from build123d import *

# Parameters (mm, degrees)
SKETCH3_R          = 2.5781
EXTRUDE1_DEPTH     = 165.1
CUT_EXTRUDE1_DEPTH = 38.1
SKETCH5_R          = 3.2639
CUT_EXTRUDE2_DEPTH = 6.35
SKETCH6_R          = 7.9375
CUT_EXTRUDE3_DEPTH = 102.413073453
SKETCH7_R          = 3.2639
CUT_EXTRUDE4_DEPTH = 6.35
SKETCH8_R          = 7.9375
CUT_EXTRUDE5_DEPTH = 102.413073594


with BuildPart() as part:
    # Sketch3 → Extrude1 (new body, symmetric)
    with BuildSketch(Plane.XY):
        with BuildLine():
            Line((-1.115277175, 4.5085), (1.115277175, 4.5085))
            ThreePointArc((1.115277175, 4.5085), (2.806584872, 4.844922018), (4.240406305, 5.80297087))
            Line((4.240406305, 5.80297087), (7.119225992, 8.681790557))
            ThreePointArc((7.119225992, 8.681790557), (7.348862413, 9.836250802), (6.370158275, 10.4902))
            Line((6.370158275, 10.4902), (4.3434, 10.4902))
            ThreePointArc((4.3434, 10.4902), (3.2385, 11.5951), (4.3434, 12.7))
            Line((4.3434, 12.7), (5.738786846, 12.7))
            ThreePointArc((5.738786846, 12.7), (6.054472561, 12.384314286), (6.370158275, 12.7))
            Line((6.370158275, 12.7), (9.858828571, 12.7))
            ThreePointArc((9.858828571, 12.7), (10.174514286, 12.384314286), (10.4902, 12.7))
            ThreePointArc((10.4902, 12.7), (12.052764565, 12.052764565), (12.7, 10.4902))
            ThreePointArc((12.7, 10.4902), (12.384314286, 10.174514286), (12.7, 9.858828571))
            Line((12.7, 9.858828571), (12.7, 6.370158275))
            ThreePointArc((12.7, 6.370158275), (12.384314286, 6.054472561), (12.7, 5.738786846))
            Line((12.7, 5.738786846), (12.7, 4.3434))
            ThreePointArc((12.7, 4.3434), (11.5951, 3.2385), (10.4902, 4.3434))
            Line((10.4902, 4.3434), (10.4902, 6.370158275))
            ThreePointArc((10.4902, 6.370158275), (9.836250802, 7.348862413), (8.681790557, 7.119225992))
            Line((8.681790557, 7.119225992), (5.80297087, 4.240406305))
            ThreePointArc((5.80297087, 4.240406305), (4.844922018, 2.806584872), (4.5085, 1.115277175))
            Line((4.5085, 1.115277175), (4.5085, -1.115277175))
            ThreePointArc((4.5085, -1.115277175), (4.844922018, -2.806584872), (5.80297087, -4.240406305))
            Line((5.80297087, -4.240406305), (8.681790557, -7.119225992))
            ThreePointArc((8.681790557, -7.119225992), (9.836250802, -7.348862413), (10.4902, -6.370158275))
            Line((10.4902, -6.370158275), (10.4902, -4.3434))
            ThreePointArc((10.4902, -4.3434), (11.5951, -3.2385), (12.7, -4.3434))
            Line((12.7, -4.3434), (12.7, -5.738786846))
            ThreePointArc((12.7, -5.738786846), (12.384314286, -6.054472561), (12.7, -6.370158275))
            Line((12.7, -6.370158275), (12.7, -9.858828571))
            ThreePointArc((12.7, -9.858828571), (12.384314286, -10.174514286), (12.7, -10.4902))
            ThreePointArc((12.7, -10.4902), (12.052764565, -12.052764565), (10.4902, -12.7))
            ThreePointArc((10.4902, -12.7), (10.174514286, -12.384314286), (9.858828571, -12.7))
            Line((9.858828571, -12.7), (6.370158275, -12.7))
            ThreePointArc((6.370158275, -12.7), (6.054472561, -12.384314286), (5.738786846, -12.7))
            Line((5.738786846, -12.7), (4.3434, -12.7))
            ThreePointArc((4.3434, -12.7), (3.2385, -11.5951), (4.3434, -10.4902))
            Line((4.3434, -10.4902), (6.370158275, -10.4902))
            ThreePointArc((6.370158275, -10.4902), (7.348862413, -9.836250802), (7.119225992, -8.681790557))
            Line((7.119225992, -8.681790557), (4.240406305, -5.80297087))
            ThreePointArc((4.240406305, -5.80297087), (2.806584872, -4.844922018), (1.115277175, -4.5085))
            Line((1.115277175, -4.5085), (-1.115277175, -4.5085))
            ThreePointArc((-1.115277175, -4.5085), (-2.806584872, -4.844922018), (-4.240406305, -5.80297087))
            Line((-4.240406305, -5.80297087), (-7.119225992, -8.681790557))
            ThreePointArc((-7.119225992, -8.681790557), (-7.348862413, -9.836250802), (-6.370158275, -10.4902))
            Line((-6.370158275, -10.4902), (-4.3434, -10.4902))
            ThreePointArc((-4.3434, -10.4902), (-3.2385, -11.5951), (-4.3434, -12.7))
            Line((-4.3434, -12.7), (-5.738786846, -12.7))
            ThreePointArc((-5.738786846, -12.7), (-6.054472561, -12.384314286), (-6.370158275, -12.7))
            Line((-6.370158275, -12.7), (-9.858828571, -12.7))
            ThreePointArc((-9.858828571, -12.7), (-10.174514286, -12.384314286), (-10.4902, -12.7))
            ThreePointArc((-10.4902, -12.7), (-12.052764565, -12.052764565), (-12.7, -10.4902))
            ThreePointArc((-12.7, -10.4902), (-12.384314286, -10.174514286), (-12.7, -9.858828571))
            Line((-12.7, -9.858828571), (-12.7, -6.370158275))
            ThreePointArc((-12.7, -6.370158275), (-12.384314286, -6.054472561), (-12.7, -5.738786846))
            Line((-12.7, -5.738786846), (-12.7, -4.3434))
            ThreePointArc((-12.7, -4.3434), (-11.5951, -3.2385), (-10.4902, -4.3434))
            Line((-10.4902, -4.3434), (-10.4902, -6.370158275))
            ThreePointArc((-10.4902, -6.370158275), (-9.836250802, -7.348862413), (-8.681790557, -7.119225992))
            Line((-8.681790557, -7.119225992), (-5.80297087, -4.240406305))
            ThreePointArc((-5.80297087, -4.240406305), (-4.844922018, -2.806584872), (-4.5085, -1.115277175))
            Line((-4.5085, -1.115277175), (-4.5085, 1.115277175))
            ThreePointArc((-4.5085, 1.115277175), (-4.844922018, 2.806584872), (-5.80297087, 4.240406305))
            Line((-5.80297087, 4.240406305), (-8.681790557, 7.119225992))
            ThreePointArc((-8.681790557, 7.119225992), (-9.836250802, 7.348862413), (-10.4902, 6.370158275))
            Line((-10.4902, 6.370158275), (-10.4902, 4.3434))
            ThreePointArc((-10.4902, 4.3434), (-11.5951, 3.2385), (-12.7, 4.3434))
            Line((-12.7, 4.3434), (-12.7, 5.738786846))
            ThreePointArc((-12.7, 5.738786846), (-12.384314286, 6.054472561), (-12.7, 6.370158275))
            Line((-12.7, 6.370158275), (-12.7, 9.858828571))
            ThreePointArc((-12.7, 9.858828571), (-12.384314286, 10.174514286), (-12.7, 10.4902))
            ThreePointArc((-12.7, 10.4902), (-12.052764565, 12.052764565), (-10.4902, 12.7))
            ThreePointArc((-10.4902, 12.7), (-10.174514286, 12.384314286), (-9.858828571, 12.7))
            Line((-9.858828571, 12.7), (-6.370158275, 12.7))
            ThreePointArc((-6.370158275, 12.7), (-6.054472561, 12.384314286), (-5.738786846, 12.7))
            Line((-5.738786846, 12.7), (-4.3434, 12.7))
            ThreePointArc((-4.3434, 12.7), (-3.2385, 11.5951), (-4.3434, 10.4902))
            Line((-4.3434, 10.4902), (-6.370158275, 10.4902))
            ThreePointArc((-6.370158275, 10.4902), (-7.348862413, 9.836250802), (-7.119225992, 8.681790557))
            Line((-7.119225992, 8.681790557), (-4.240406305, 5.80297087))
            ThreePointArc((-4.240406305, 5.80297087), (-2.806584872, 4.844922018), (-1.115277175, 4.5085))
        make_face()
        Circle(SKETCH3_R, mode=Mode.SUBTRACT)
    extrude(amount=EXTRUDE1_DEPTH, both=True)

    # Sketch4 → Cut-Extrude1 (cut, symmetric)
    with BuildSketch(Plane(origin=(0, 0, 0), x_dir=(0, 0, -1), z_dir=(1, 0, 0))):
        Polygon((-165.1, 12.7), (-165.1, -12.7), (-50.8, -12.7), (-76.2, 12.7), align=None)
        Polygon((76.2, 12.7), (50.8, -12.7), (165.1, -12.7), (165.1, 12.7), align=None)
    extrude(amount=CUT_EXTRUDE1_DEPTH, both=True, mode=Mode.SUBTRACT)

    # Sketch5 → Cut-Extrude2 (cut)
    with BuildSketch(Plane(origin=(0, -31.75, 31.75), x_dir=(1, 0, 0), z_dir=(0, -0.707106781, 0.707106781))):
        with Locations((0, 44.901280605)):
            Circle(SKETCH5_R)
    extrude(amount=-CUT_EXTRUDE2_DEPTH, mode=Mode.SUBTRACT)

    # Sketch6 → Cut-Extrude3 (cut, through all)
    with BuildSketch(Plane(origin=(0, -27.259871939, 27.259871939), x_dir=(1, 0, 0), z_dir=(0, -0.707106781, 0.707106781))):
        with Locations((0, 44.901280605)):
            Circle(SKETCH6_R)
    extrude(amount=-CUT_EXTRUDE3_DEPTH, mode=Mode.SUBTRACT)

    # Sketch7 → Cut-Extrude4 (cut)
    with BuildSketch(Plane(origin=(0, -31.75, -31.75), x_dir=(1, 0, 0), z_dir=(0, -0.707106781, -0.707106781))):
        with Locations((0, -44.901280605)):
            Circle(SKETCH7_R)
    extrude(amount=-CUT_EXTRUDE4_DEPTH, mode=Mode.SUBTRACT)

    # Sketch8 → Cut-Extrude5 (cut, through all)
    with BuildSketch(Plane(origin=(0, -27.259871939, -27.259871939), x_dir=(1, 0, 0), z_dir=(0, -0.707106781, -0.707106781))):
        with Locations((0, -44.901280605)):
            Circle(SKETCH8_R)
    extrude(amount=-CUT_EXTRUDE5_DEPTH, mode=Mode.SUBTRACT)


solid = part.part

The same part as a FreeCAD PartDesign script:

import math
import FreeCAD as App
import Part
import Sketcher
from FreeCAD import Vector
Q = App.Units.Quantity

doc = App.newDocument("Part")
body = doc.addObject("PartDesign::Body", "Body")

# Sketch on XY plane
sketch1 = body.newObject("Sketcher::SketchObject", "Sketch")
sketch1.AttachmentSupport = (doc.getObject("XY_Plane"), [""])
sketch1.MapMode = "FlatFace"
sketch1.addGeometry([
    Part.LineSegment(Vector(1.115277, 4.5085, 0), Vector(-1.115277, 4.5085, 0)),  # 0
    Part.ArcOfCircle(Part.Circle(Vector(-1.115277, 8.9281, 0), Vector(0, 0, 1), 4.4196), math.radians(-135), math.radians(-90)),  # 1
    Part.LineSegment(Vector(-4.240406, 5.802971, 0), Vector(-7.119226, 8.681791, 0)),  # 2
    Part.ArcOfCircle(Part.Circle(Vector(-6.370158, 9.430858, 0), Vector(0, 0, 1), 1.059342), math.radians(90), math.radians(225)),  # 3
    Part.LineSegment(Vector(-6.370158, 10.4902, 0), Vector(-4.3434, 10.4902, 0)),  # 4
    Part.ArcOfCircle(Part.Circle(Vector(-4.3434, 11.5951, 0), Vector(0, 0, 1), 1.1049), math.radians(-90), math.radians(90)),  # 5
    Part.LineSegment(Vector(-4.3434, 12.7, 0), Vector(-5.738787, 12.7, 0)),  # 6
    Part.ArcOfCircle(Part.Circle(Vector(-6.054473, 12.7, 0), Vector(0, 0, 1), 0.315686), math.radians(-180), math.radians(0)),  # 7
    Part.LineSegment(Vector(-6.370158, 12.7, 0), Vector(-9.858829, 12.7, 0)),  # 8
    Part.ArcOfCircle(Part.Circle(Vector(-10.174514, 12.7, 0), Vector(0, 0, 1), 0.315686), math.radians(-180), math.radians(0)),  # 9
    Part.ArcOfCircle(Part.Circle(Vector(-10.4902, 10.4902, 0), Vector(0, 0, 1), 2.2098), math.radians(90), math.radians(180)),  # 10
    Part.ArcOfCircle(Part.Circle(Vector(-12.7, 10.174514, 0), Vector(0, 0, 1), 0.315686), math.radians(-90), math.radians(90)),  # 11
    Part.LineSegment(Vector(-12.7, 9.858829, 0), Vector(-12.7, 6.370158, 0)),  # 12
    Part.ArcOfCircle(Part.Circle(Vector(-12.7, 6.054473, 0), Vector(0, 0, 1), 0.315686), math.radians(-90), math.radians(90)),  # 13
    Part.LineSegment(Vector(-12.7, 5.738787, 0), Vector(-12.7, 4.3434, 0)),  # 14
    Part.ArcOfCircle(Part.Circle(Vector(-11.5951, 4.3434, 0), Vector(0, 0, 1), 1.1049), math.radians(180), math.radians(360)),  # 15
    Part.LineSegment(Vector(-10.4902, 4.3434, 0), Vector(-10.4902, 6.370158, 0)),  # 16
    Part.ArcOfCircle(Part.Circle(Vector(-9.430858, 6.370158, 0), Vector(0, 0, 1), 1.059342), math.radians(45), math.radians(180)),  # 17
    Part.LineSegment(Vector(-8.681791, 7.119226, 0), Vector(-5.802971, 4.240406, 0)),  # 18
    Part.ArcOfCircle(Part.Circle(Vector(-8.9281, 1.115277, 0), Vector(0, 0, 1), 4.4196), math.radians(0), math.radians(45)),  # 19
    Part.LineSegment(Vector(-4.5085, 1.115277, 0), Vector(-4.5085, -1.115277, 0)),  # 20
    Part.ArcOfCircle(Part.Circle(Vector(-8.9281, -1.115277, 0), Vector(0, 0, 1), 4.4196), math.radians(-45), math.radians(0)),  # 21
    Part.LineSegment(Vector(-5.802971, -4.240406, 0), Vector(-8.681791, -7.119226, 0)),  # 22
    Part.ArcOfCircle(Part.Circle(Vector(-9.430858, -6.370158, 0), Vector(0, 0, 1), 1.059342), math.radians(180), math.radians(315)),  # 23
    Part.LineSegment(Vector(-10.4902, -6.370158, 0), Vector(-10.4902, -4.3434, 0)),  # 24
    Part.ArcOfCircle(Part.Circle(Vector(-11.5951, -4.3434, 0), Vector(0, 0, 1), 1.1049), math.radians(0), math.radians(180)),  # 25
    Part.LineSegment(Vector(-12.7, -4.3434, 0), Vector(-12.7, -5.738787, 0)),  # 26
    Part.ArcOfCircle(Part.Circle(Vector(-12.7, -6.054473, 0), Vector(0, 0, 1), 0.315686), math.radians(-90), math.radians(90)),  # 27
    Part.LineSegment(Vector(-12.7, -6.370158, 0), Vector(-12.7, -9.858829, 0)),  # 28
    Part.ArcOfCircle(Part.Circle(Vector(-12.7, -10.174514, 0), Vector(0, 0, 1), 0.315686), math.radians(-90), math.radians(90)),  # 29
    Part.ArcOfCircle(Part.Circle(Vector(-10.4902, -10.4902, 0), Vector(0, 0, 1), 2.2098), math.radians(180), math.radians(270)),  # 30
    Part.ArcOfCircle(Part.Circle(Vector(-10.174514, -12.7, 0), Vector(0, 0, 1), 0.315686), math.radians(0), math.radians(180)),  # 31
    Part.LineSegment(Vector(-9.858829, -12.7, 0), Vector(-6.370158, -12.7, 0)),  # 32
    Part.ArcOfCircle(Part.Circle(Vector(-6.054473, -12.7, 0), Vector(0, 0, 1), 0.315686), math.radians(0), math.radians(180)),  # 33
    Part.LineSegment(Vector(-5.738787, -12.7, 0), Vector(-4.3434, -12.7, 0)),  # 34
    Part.ArcOfCircle(Part.Circle(Vector(-4.3434, -11.5951, 0), Vector(0, 0, 1), 1.1049), math.radians(-90), math.radians(90)),  # 35
    Part.LineSegment(Vector(-4.3434, -10.4902, 0), Vector(-6.370158, -10.4902, 0)),  # 36
    Part.ArcOfCircle(Part.Circle(Vector(-6.370158, -9.430858, 0), Vector(0, 0, 1), 1.059342), math.radians(135), math.radians(270)),  # 37
    Part.LineSegment(Vector(-7.119226, -8.681791, 0), Vector(-4.240406, -5.802971, 0)),  # 38
    Part.ArcOfCircle(Part.Circle(Vector(-1.115277, -8.9281, 0), Vector(0, 0, 1), 4.4196), math.radians(90), math.radians(135)),  # 39
    Part.LineSegment(Vector(-1.115277, -4.5085, 0), Vector(1.115277, -4.5085, 0)),  # 40
    Part.ArcOfCircle(Part.Circle(Vector(1.115277, -8.9281, 0), Vector(0, 0, 1), 4.4196), math.radians(45), math.radians(90)),  # 41
    Part.LineSegment(Vector(4.240406, -5.802971, 0), Vector(7.119226, -8.681791, 0)),  # 42
    Part.ArcOfCircle(Part.Circle(Vector(6.370158, -9.430858, 0), Vector(0, 0, 1), 1.059342), math.radians(-90), math.radians(45)),  # 43
    Part.LineSegment(Vector(6.370158, -10.4902, 0), Vector(4.3434, -10.4902, 0)),  # 44
    Part.ArcOfCircle(Part.Circle(Vector(4.3434, -11.5951, 0), Vector(0, 0, 1), 1.1049), math.radians(90), math.radians(270)),  # 45
    Part.LineSegment(Vector(4.3434, -12.7, 0), Vector(5.738787, -12.7, 0)),  # 46
    Part.ArcOfCircle(Part.Circle(Vector(6.054473, -12.7, 0), Vector(0, 0, 1), 0.315686), math.radians(0), math.radians(180)),  # 47
    Part.LineSegment(Vector(6.370158, -12.7, 0), Vector(9.858829, -12.7, 0)),  # 48
    Part.ArcOfCircle(Part.Circle(Vector(10.174514, -12.7, 0), Vector(0, 0, 1), 0.315686), math.radians(0), math.radians(180)),  # 49
    Part.ArcOfCircle(Part.Circle(Vector(10.4902, -10.4902, 0), Vector(0, 0, 1), 2.2098), math.radians(-90), math.radians(0)),  # 50
    Part.ArcOfCircle(Part.Circle(Vector(12.7, -10.174514, 0), Vector(0, 0, 1), 0.315686), math.radians(90), math.radians(270)),  # 51
    Part.LineSegment(Vector(12.7, -9.858829, 0), Vector(12.7, -6.370158, 0)),  # 52
    Part.ArcOfCircle(Part.Circle(Vector(12.7, -6.054473, 0), Vector(0, 0, 1), 0.315686), math.radians(90), math.radians(270)),  # 53
    Part.LineSegment(Vector(12.7, -5.738787, 0), Vector(12.7, -4.3434, 0)),  # 54
    Part.ArcOfCircle(Part.Circle(Vector(11.5951, -4.3434, 0), Vector(0, 0, 1), 1.1049), math.radians(0), math.radians(180)),  # 55
    Part.LineSegment(Vector(10.4902, -4.3434, 0), Vector(10.4902, -6.370158, 0)),  # 56
    Part.ArcOfCircle(Part.Circle(Vector(9.430858, -6.370158, 0), Vector(0, 0, 1), 1.059342), math.radians(-135), math.radians(0)),  # 57
    Part.LineSegment(Vector(8.681791, -7.119226, 0), Vector(5.802971, -4.240406, 0)),  # 58
    Part.ArcOfCircle(Part.Circle(Vector(8.9281, -1.115277, 0), Vector(0, 0, 1), 4.4196), math.radians(-180), math.radians(-135)),  # 59
    Part.LineSegment(Vector(4.5085, -1.115277, 0), Vector(4.5085, 1.115277, 0)),  # 60
    Part.ArcOfCircle(Part.Circle(Vector(8.9281, 1.115277, 0), Vector(0, 0, 1), 4.4196), math.radians(135), math.radians(180)),  # 61
    Part.LineSegment(Vector(5.802971, 4.240406, 0), Vector(8.681791, 7.119226, 0)),  # 62
    Part.ArcOfCircle(Part.Circle(Vector(9.430858, 6.370158, 0), Vector(0, 0, 1), 1.059342), math.radians(0), math.radians(135)),  # 63
    Part.LineSegment(Vector(10.4902, 6.370158, 0), Vector(10.4902, 4.3434, 0)),  # 64
    Part.ArcOfCircle(Part.Circle(Vector(11.5951, 4.3434, 0), Vector(0, 0, 1), 1.1049), math.radians(180), math.radians(360)),  # 65
    Part.LineSegment(Vector(12.7, 4.3434, 0), Vector(12.7, 5.738787, 0)),  # 66
    Part.ArcOfCircle(Part.Circle(Vector(12.7, 6.054473, 0), Vector(0, 0, 1), 0.315686), math.radians(90), math.radians(270)),  # 67
    Part.LineSegment(Vector(12.7, 6.370158, 0), Vector(12.7, 9.858829, 0)),  # 68
    Part.ArcOfCircle(Part.Circle(Vector(12.7, 10.174514, 0), Vector(0, 0, 1), 0.315686), math.radians(90), math.radians(270)),  # 69
    Part.ArcOfCircle(Part.Circle(Vector(10.4902, 10.4902, 0), Vector(0, 0, 1), 2.2098), math.radians(0), math.radians(90)),  # 70
    Part.ArcOfCircle(Part.Circle(Vector(10.174514, 12.7, 0), Vector(0, 0, 1), 0.315686), math.radians(-180), math.radians(0)),  # 71
    Part.LineSegment(Vector(9.858829, 12.7, 0), Vector(6.370158, 12.7, 0)),  # 72
    Part.ArcOfCircle(Part.Circle(Vector(6.054473, 12.7, 0), Vector(0, 0, 1), 0.315686), math.radians(-180), math.radians(0)),  # 73
    Part.LineSegment(Vector(5.738787, 12.7, 0), Vector(4.3434, 12.7, 0)),  # 74
    Part.ArcOfCircle(Part.Circle(Vector(4.3434, 11.5951, 0), Vector(0, 0, 1), 1.1049), math.radians(90), math.radians(270)),  # 75
    Part.LineSegment(Vector(4.3434, 10.4902, 0), Vector(6.370158, 10.4902, 0)),  # 76
    Part.ArcOfCircle(Part.Circle(Vector(6.370158, 9.430858, 0), Vector(0, 0, 1), 1.059342), math.radians(-45), math.radians(90)),  # 77
    Part.LineSegment(Vector(7.119226, 8.681791, 0), Vector(4.240406, 5.802971, 0)),  # 78
    Part.ArcOfCircle(Part.Circle(Vector(1.115277, 8.9281, 0), Vector(0, 0, 1), 4.4196), math.radians(-90), math.radians(-45)),  # 79
    Part.Circle(Vector(0, 0, 0), Vector(0, 0, 1), 2.5781),  # 80
], False)
sketch1.addConstraint([
    Sketcher.Constraint("Tangent", 0, 2, 1, 2),
    Sketcher.Constraint("Tangent", 1, 1, 2, 1),
    Sketcher.Constraint("Tangent", 2, 2, 3, 2),
    Sketcher.Constraint("Tangent", 3, 1, 4, 1),
    Sketcher.Constraint("Tangent", 4, 2, 5, 1),
    Sketcher.Constraint("Tangent", 5, 2, 6, 1),
    Sketcher.Constraint("Coincident", 6, 2, 7, 2),
    Sketcher.Constraint("Coincident", 7, 1, 8, 1),
    Sketcher.Constraint("Coincident", 8, 2, 9, 2),
    Sketcher.Constraint("Coincident", 9, 1, 10, 1),
    Sketcher.Constraint("Coincident", 10, 2, 11, 2),
    Sketcher.Constraint("Coincident", 11, 1, 12, 1),
    Sketcher.Constraint("Coincident", 12, 2, 13, 2),
    Sketcher.Constraint("Coincident", 13, 1, 14, 1),
    Sketcher.Constraint("Tangent", 14, 2, 15, 1),
    Sketcher.Constraint("Tangent", 15, 2, 16, 1),
    Sketcher.Constraint("Tangent", 16, 2, 17, 2),
    Sketcher.Constraint("Tangent", 17, 1, 18, 1),
    Sketcher.Constraint("Tangent", 18, 2, 19, 2),
    Sketcher.Constraint("Tangent", 19, 1, 20, 1),
    Sketcher.Constraint("Tangent", 20, 2, 21, 2),
    Sketcher.Constraint("Tangent", 21, 1, 22, 1),
    Sketcher.Constraint("Tangent", 22, 2, 23, 2),
    Sketcher.Constraint("Tangent", 23, 1, 24, 1),
    Sketcher.Constraint("Tangent", 24, 2, 25, 1),
    Sketcher.Constraint("Tangent", 25, 2, 26, 1),
    Sketcher.Constraint("Coincident", 26, 2, 27, 2),
    Sketcher.Constraint("Coincident", 27, 1, 28, 1),
    Sketcher.Constraint("Coincident", 28, 2, 29, 2),
    Sketcher.Constraint("Coincident", 29, 1, 30, 1),
    Sketcher.Constraint("Coincident", 30, 2, 31, 2),
    Sketcher.Constraint("Coincident", 31, 1, 32, 1),
    Sketcher.Constraint("Coincident", 32, 2, 33, 2),
    Sketcher.Constraint("Coincident", 33, 1, 34, 1),
    Sketcher.Constraint("Tangent", 34, 2, 35, 1),
    Sketcher.Constraint("Tangent", 35, 2, 36, 1),
    Sketcher.Constraint("Tangent", 36, 2, 37, 2),
    Sketcher.Constraint("Tangent", 37, 1, 38, 1),
    Sketcher.Constraint("Tangent", 38, 2, 39, 2),
    Sketcher.Constraint("Tangent", 39, 1, 40, 1),
    Sketcher.Constraint("Tangent", 40, 2, 41, 2),
    Sketcher.Constraint("Tangent", 41, 1, 42, 1),
    Sketcher.Constraint("Tangent", 42, 2, 43, 2),
    Sketcher.Constraint("Tangent", 43, 1, 44, 1),
    Sketcher.Constraint("Tangent", 44, 2, 45, 1),
    Sketcher.Constraint("Tangent", 45, 2, 46, 1),
    Sketcher.Constraint("Coincident", 46, 2, 47, 2),
    Sketcher.Constraint("Coincident", 47, 1, 48, 1),
    Sketcher.Constraint("Coincident", 48, 2, 49, 2),
    Sketcher.Constraint("Coincident", 49, 1, 50, 1),
    Sketcher.Constraint("Coincident", 50, 2, 51, 2),
    Sketcher.Constraint("Coincident", 51, 1, 52, 1),
    Sketcher.Constraint("Coincident", 52, 2, 53, 2),
    Sketcher.Constraint("Coincident", 53, 1, 54, 1),
    Sketcher.Constraint("Tangent", 54, 2, 55, 1),
    Sketcher.Constraint("Tangent", 55, 2, 56, 1),
    Sketcher.Constraint("Tangent", 56, 2, 57, 2),
    Sketcher.Constraint("Tangent", 57, 1, 58, 1),
    Sketcher.Constraint("Tangent", 58, 2, 59, 2),
    Sketcher.Constraint("Tangent", 59, 1, 60, 1),
    Sketcher.Constraint("Tangent", 60, 2, 61, 2),
    Sketcher.Constraint("Tangent", 61, 1, 62, 1),
    Sketcher.Constraint("Tangent", 62, 2, 63, 2),
    Sketcher.Constraint("Tangent", 63, 1, 64, 1),
    Sketcher.Constraint("Tangent", 64, 2, 65, 1),
    Sketcher.Constraint("Tangent", 65, 2, 66, 1),
    Sketcher.Constraint("Coincident", 66, 2, 67, 2),
    Sketcher.Constraint("Coincident", 67, 1, 68, 1),
    Sketcher.Constraint("Coincident", 68, 2, 69, 2),
    Sketcher.Constraint("Coincident", 69, 1, 70, 1),
    Sketcher.Constraint("Coincident", 70, 2, 71, 2),
    Sketcher.Constraint("Coincident", 71, 1, 72, 1),
    Sketcher.Constraint("Coincident", 72, 2, 73, 2),
    Sketcher.Constraint("Coincident", 73, 1, 74, 1),
    Sketcher.Constraint("Tangent", 74, 2, 75, 1),
    Sketcher.Constraint("Tangent", 75, 2, 76, 1),
    Sketcher.Constraint("Tangent", 76, 2, 77, 2),
    Sketcher.Constraint("Tangent", 77, 1, 78, 1),
    Sketcher.Constraint("Tangent", 78, 2, 79, 2),
    Sketcher.Constraint("Tangent", 79, 1, 0, 1),
    Sketcher.Constraint("Horizontal", 0),
    Sketcher.Constraint("Horizontal", 4),
    Sketcher.Constraint("Horizontal", 6),
    Sketcher.Constraint("Horizontal", 8),
    Sketcher.Constraint("Vertical", 12),
    Sketcher.Constraint("Vertical", 14),
    Sketcher.Constraint("Vertical", 16),
    Sketcher.Constraint("Vertical", 20),
    Sketcher.Constraint("Vertical", 24),
    Sketcher.Constraint("Vertical", 26),
    Sketcher.Constraint("Vertical", 28),
    Sketcher.Constraint("Horizontal", 32),
    Sketcher.Constraint("Horizontal", 34),
    Sketcher.Constraint("Horizontal", 36),
    Sketcher.Constraint("Horizontal", 40),
    Sketcher.Constraint("Horizontal", 44),
    Sketcher.Constraint("Horizontal", 46),
    Sketcher.Constraint("Horizontal", 48),
    Sketcher.Constraint("Vertical", 52),
    Sketcher.Constraint("Vertical", 54),
    Sketcher.Constraint("Vertical", 56),
    Sketcher.Constraint("Vertical", 60),
    Sketcher.Constraint("Vertical", 64),
    Sketcher.Constraint("Vertical", 66),
    Sketcher.Constraint("Vertical", 68),
    Sketcher.Constraint("Horizontal", 72),
    Sketcher.Constraint("Horizontal", 74),
    Sketcher.Constraint("Horizontal", 76),
    Sketcher.Constraint("Coincident", 80, 3, -1, 1),
    Sketcher.Constraint("Equal", 7, 9),
    Sketcher.Constraint("Equal", 9, 11),
    Sketcher.Constraint("Equal", 11, 13),
    Sketcher.Constraint("Equal", 5, 15),
    Sketcher.Constraint("Equal", 3, 17),
    Sketcher.Constraint("Equal", 1, 19),
    Sketcher.Constraint("Equal", 19, 21),
    Sketcher.Constraint("Equal", 17, 23),
    Sketcher.Constraint("Equal", 15, 25),
    Sketcher.Constraint("Equal", 13, 27),
    Sketcher.Constraint("Equal", 27, 29),
    Sketcher.Constraint("Equal", 10, 30),
    Sketcher.Constraint("Equal", 29, 31),
    Sketcher.Constraint("Equal", 31, 33),
    Sketcher.Constraint("Equal", 25, 35),
    Sketcher.Constraint("Equal", 23, 37),
    Sketcher.Constraint("Equal", 21, 39),
    Sketcher.Constraint("Equal", 39, 41),
    Sketcher.Constraint("Equal", 37, 43),
    Sketcher.Constraint("Equal", 35, 45),
    Sketcher.Constraint("Equal", 33, 47),
    Sketcher.Constraint("Equal", 47, 49),
    Sketcher.Constraint("Equal", 30, 50),
    Sketcher.Constraint("Equal", 49, 51),
    Sketcher.Constraint("Equal", 51, 53),
    Sketcher.Constraint("Equal", 45, 55),
    Sketcher.Constraint("Equal", 43, 57),
    Sketcher.Constraint("Equal", 41, 59),
    Sketcher.Constraint("Equal", 59, 61),
    Sketcher.Constraint("Equal", 57, 63),
    Sketcher.Constraint("Equal", 55, 65),
    Sketcher.Constraint("Equal", 53, 67),
    Sketcher.Constraint("Equal", 67, 69),
    Sketcher.Constraint("Equal", 50, 70),
    Sketcher.Constraint("Equal", 69, 71),
    Sketcher.Constraint("Equal", 71, 73),
    Sketcher.Constraint("Equal", 65, 75),
    Sketcher.Constraint("Equal", 63, 77),
    Sketcher.Constraint("Equal", 61, 79),
    Sketcher.Constraint("Symmetric", 1, 3, 41, 3, -1, 1),
    Sketcher.Constraint("Symmetric", 3, 3, 43, 3, -1, 1),
    Sketcher.Constraint("Symmetric", 7, 3, 47, 3, -1, 1),
    Sketcher.Constraint("Symmetric", 9, 3, 49, 3, -1, 1),
    Sketcher.Constraint("Symmetric", 10, 3, 50, 3, -1, 1),
    Sketcher.Constraint("Symmetric", 11, 3, 51, 3, -1, 1),
    Sketcher.Constraint("Symmetric", 13, 3, 53, 3, -1, 1),
    Sketcher.Constraint("Symmetric", 15, 3, 55, 3, -1, 1),
    Sketcher.Constraint("Symmetric", 19, 3, 59, 3, -1, 1),
    Sketcher.Constraint("Symmetric", 23, 3, 63, 3, -1, 1),
    Sketcher.Constraint("Symmetric", 27, 3, 67, 3, -1, 1),
    Sketcher.Constraint("Symmetric", 29, 3, 69, 3, -1, 1),
    Sketcher.Constraint("Symmetric", 30, 3, 70, 3, -1, 1),
    Sketcher.Constraint("Symmetric", 31, 3, 71, 3, -1, 1),
    Sketcher.Constraint("Symmetric", 33, 3, 73, 3, -1, 1),
    Sketcher.Constraint("Symmetric", 35, 3, 75, 3, -1, 1),
    Sketcher.Constraint("Symmetric", 37, 1, 77, 1, -1, 1),
    Sketcher.Constraint("Symmetric", 37, 3, 43, 3, -2),
    Sketcher.Constraint("Symmetric", 33, 3, 47, 3, -2),
    Sketcher.Constraint("Symmetric", 31, 3, 49, 3, -2),
    Sketcher.Constraint("Symmetric", 30, 3, 50, 3, -2),
    Sketcher.Constraint("Symmetric", 29, 3, 51, 3, -2),
    Sketcher.Constraint("Symmetric", 27, 3, 53, 3, -2),
    Sketcher.Constraint("Symmetric", 25, 3, 55, 3, -2),
    Sketcher.Constraint("Symmetric", 22, 2, 57, 1, -2),
    Sketcher.Constraint("Symmetric", 18, 2, 61, 1, -2),
    Sketcher.Constraint("Parallel", 2, 18),
    Sketcher.Constraint("Perpendicular", 18, 22),
    Sketcher.Constraint("Parallel", 22, 38),
    Sketcher.Constraint("Horizontal", 7, 3, 9, 3),
    Sketcher.Constraint("Horizontal", 15, 3, 65, 3),
    Sketcher.Constraint("Horizontal", 70, 3, 3, 1),
    Sketcher.Constraint("Horizontal", 73, 3, 5, 2),
    Sketcher.Constraint("Horizontal", 6, 2, 7, 1),
    Sketcher.Constraint("Horizontal", 8, 2, 9, 1),
    Sketcher.Constraint("Horizontal", 4, 2, 10, 2),
    Sketcher.Constraint("Horizontal", 63, 3, 12, 2),
    Sketcher.Constraint("Horizontal", 30, 2, 31, 1),
    Sketcher.Constraint("Horizontal", 46, 2, 47, 1),
    Sketcher.Constraint("Horizontal", 70, 2, 71, 1),
    Sketcher.Constraint("Vertical", 11, 3, 13, 3),
    Sketcher.Constraint("Vertical", 5, 3, 35, 3),
    Sketcher.Constraint("Vertical", 45, 3, 75, 3),
    Sketcher.Constraint("Vertical", 3, 1, 7, 1),
    Sketcher.Constraint("Vertical", 30, 3, 9, 1),
    Sketcher.Constraint("Vertical", 29, 3, 10, 2),
    Sketcher.Constraint("Vertical", 10, 2, 11, 1),
    Sketcher.Constraint("Vertical", 12, 2, 13, 1),
    Sketcher.Constraint("Vertical", 26, 2, 27, 1),
    Sketcher.Constraint("Vertical", 50, 2, 51, 1),
    Sketcher.Constraint("Vertical", 66, 2, 67, 1),
    Sketcher.Constraint("Equal", 72, 12),
    Sketcher.Constraint("Equal", 74, 14),
    Sketcher.Constraint("Equal", 40, 20),
    Sketcher.Constraint("Equal", 2, 18),
    Sketcher.Constraint("Diameter", 80, Q("0.203 in")),
    Sketcher.Constraint("Radius", 1, Q("0.174 in")),
    Sketcher.Constraint("Radius", 10, Q("0.087 in")),
    Sketcher.Constraint("DistanceY", -1, 1, 7, 3, Q("0.5 in")),
    Sketcher.Constraint("DistanceX", 5, 3, -1, 1, Q("0.171 in")),
    Sketcher.Constraint("Radius", 3, 1.059342),
    Sketcher.Constraint("DistanceY", -1, 1, 1, 3, Q("0.3515 in")),
    Sketcher.Constraint("Radius", 7, 0.315686),
    Sketcher.Constraint("DistanceX", 4, 1, 4, 2, 2.026758),
])
pad1 = body.newObject("PartDesign::Pad", "Pad")
pad1.Profile = sketch1
pad1.Length = Q("13 in")
pad1.Midplane = True

# Sketch on YZ plane
sketch2 = body.newObject("Sketcher::SketchObject", "Sketch001")
sketch2.AttachmentSupport = (doc.getObject("YZ_Plane"), [""])
sketch2.MapMode = "FlatFace"
sketch2.addGeometry([
    Part.LineSegment(Vector(12.7, 165.1, 0), Vector(-12.7, 165.1, 0)),  # 0
    Part.LineSegment(Vector(-12.7, 165.1, 0), Vector(-12.7, 50.8, 0)),  # 1
    Part.LineSegment(Vector(-12.7, 50.8, 0), Vector(12.7, 76.2, 0)),  # 2
    Part.LineSegment(Vector(12.7, 76.2, 0), Vector(12.7, 165.1, 0)),  # 3
    Part.LineSegment(Vector(12.7, -76.2, 0), Vector(-12.7, -50.8, 0)),  # 4
    Part.LineSegment(Vector(-12.7, -50.8, 0), Vector(-12.7, -165.1, 0)),  # 5
    Part.LineSegment(Vector(-12.7, -165.1, 0), Vector(12.7, -165.1, 0)),  # 6
    Part.LineSegment(Vector(12.7, -165.1, 0), Vector(12.7, -76.2, 0)),  # 7
], False)
sketch2.addConstraint([
    Sketcher.Constraint("Coincident", 0, 2, 1, 1),
    Sketcher.Constraint("Coincident", 1, 2, 2, 1),
    Sketcher.Constraint("Coincident", 2, 2, 3, 1),
    Sketcher.Constraint("Coincident", 3, 2, 0, 1),
    Sketcher.Constraint("Coincident", 4, 2, 5, 1),
    Sketcher.Constraint("Coincident", 5, 2, 6, 1),
    Sketcher.Constraint("Coincident", 6, 2, 7, 1),
    Sketcher.Constraint("Coincident", 7, 2, 4, 1),
    Sketcher.Constraint("Horizontal", 0),
    Sketcher.Constraint("Vertical", 1),
    Sketcher.Constraint("Vertical", 3),
    Sketcher.Constraint("Vertical", 5),
    Sketcher.Constraint("Horizontal", 6),
    Sketcher.Constraint("Vertical", 7),
    Sketcher.Constraint("Symmetric", 3, 2, 5, 2, -1, 1),
    Sketcher.Constraint("Symmetric", 1, 2, 4, 2, -1),
    Sketcher.Constraint("Symmetric", 2, 2, 7, 2, -1),
    Sketcher.Constraint("Perpendicular", 2, 4),
    Sketcher.Constraint("DistanceX", 0, 2, 0, 1, Q("1 in")),
    Sketcher.Constraint("DistanceY", 1, 2, 1, 1, Q("4.5 in")),
    Sketcher.Constraint("DistanceY", -1, 1, 1, 2, Q("2 in")),
])
pocket1 = body.newObject("PartDesign::Pocket", "Pocket")
pocket1.Profile = sketch2
pocket1.Length = Q("3 in")
pocket1.Midplane = True

# Sketch on an angled plane
sketch3 = body.newObject("Sketcher::SketchObject", "Sketch002")
sketch3.Placement = App.Placement(Vector(0, -31.75, 31.75), App.Rotation(Vector(1, 0, 0), Vector(0, 0.707106781, 0.707106781), Vector(0, -0.707106781, 0.707106781), "ZXY"))
sketch3.addGeometry(Part.Circle(Vector(0, 44.901281, 0), Vector(0, 0, 1), 3.2639), False)
sketch3.addConstraint([
    Sketcher.Constraint("PointOnObject", 0, 3, -2),
    Sketcher.Constraint("Diameter", 0, Q("0.257 in")),
    Sketcher.Constraint("DistanceY", -1, 1, 0, 3, 44.901281),
])
pocket2 = body.newObject("PartDesign::Pocket", "Pocket001")
pocket2.Profile = sketch3
pocket2.Length = Q("0.25 in")

# Sketch on an angled plane
sketch4 = body.newObject("Sketcher::SketchObject", "Sketch003")
sketch4.Placement = App.Placement(Vector(0, -27.259872, 27.259872), App.Rotation(Vector(1, 0, 0), Vector(0, 0.707106781, 0.707106781), Vector(0, -0.707106781, 0.707106781), "ZXY"))
sketch4.addGeometry(Part.Circle(Vector(0, 44.901281, 0), Vector(0, 0, 1), 7.9375), False)
sketch4.addConstraint([
    Sketcher.Constraint("PointOnObject", 0, 3, -2),
    Sketcher.Constraint("Diameter", 0, Q("0.625 in")),
    Sketcher.Constraint("DistanceY", -1, 1, 0, 3, 44.901281),
])
pocket3 = body.newObject("PartDesign::Pocket", "Pocket002")
pocket3.Profile = sketch4
pocket3.Type = "ThroughAll"

# Sketch on an angled plane
sketch5 = body.newObject("Sketcher::SketchObject", "Sketch004")
sketch5.Placement = App.Placement(Vector(0, -31.75, -31.75), App.Rotation(Vector(1, 0, 0), Vector(0, -0.707106781, 0.707106781), Vector(0, -0.707106781, -0.707106781), "ZXY"))
sketch5.addGeometry(Part.Circle(Vector(0, -44.901281, 0), Vector(0, 0, 1), 3.2639), False)
sketch5.addConstraint([
    Sketcher.Constraint("PointOnObject", 0, 3, -2),
    Sketcher.Constraint("Diameter", 0, Q("0.257 in")),
    Sketcher.Constraint("DistanceY", 0, 3, -1, 1, 44.901281),
])
pocket4 = body.newObject("PartDesign::Pocket", "Pocket003")
pocket4.Profile = sketch5
pocket4.Length = Q("0.25 in")

# Sketch on an angled plane
sketch6 = body.newObject("Sketcher::SketchObject", "Sketch005")
sketch6.Placement = App.Placement(Vector(0, -27.259872, -27.259872), App.Rotation(Vector(1, 0, 0), Vector(0, -0.707106781, 0.707106781), Vector(0, -0.707106781, -0.707106781), "ZXY"))
sketch6.addGeometry(Part.Circle(Vector(0, -44.901281, 0), Vector(0, 0, 1), 7.9375), False)
sketch6.addConstraint([
    Sketcher.Constraint("PointOnObject", 0, 3, -2),
    Sketcher.Constraint("Diameter", 0, Q("0.625 in")),
    Sketcher.Constraint("DistanceY", 0, 3, -1, 1, 44.901281),
])
pocket5 = body.newObject("PartDesign::Pocket", "Pocket004")
pocket5.Profile = sketch6
pocket5.Type = "ThroughAll"

doc.recompute()
